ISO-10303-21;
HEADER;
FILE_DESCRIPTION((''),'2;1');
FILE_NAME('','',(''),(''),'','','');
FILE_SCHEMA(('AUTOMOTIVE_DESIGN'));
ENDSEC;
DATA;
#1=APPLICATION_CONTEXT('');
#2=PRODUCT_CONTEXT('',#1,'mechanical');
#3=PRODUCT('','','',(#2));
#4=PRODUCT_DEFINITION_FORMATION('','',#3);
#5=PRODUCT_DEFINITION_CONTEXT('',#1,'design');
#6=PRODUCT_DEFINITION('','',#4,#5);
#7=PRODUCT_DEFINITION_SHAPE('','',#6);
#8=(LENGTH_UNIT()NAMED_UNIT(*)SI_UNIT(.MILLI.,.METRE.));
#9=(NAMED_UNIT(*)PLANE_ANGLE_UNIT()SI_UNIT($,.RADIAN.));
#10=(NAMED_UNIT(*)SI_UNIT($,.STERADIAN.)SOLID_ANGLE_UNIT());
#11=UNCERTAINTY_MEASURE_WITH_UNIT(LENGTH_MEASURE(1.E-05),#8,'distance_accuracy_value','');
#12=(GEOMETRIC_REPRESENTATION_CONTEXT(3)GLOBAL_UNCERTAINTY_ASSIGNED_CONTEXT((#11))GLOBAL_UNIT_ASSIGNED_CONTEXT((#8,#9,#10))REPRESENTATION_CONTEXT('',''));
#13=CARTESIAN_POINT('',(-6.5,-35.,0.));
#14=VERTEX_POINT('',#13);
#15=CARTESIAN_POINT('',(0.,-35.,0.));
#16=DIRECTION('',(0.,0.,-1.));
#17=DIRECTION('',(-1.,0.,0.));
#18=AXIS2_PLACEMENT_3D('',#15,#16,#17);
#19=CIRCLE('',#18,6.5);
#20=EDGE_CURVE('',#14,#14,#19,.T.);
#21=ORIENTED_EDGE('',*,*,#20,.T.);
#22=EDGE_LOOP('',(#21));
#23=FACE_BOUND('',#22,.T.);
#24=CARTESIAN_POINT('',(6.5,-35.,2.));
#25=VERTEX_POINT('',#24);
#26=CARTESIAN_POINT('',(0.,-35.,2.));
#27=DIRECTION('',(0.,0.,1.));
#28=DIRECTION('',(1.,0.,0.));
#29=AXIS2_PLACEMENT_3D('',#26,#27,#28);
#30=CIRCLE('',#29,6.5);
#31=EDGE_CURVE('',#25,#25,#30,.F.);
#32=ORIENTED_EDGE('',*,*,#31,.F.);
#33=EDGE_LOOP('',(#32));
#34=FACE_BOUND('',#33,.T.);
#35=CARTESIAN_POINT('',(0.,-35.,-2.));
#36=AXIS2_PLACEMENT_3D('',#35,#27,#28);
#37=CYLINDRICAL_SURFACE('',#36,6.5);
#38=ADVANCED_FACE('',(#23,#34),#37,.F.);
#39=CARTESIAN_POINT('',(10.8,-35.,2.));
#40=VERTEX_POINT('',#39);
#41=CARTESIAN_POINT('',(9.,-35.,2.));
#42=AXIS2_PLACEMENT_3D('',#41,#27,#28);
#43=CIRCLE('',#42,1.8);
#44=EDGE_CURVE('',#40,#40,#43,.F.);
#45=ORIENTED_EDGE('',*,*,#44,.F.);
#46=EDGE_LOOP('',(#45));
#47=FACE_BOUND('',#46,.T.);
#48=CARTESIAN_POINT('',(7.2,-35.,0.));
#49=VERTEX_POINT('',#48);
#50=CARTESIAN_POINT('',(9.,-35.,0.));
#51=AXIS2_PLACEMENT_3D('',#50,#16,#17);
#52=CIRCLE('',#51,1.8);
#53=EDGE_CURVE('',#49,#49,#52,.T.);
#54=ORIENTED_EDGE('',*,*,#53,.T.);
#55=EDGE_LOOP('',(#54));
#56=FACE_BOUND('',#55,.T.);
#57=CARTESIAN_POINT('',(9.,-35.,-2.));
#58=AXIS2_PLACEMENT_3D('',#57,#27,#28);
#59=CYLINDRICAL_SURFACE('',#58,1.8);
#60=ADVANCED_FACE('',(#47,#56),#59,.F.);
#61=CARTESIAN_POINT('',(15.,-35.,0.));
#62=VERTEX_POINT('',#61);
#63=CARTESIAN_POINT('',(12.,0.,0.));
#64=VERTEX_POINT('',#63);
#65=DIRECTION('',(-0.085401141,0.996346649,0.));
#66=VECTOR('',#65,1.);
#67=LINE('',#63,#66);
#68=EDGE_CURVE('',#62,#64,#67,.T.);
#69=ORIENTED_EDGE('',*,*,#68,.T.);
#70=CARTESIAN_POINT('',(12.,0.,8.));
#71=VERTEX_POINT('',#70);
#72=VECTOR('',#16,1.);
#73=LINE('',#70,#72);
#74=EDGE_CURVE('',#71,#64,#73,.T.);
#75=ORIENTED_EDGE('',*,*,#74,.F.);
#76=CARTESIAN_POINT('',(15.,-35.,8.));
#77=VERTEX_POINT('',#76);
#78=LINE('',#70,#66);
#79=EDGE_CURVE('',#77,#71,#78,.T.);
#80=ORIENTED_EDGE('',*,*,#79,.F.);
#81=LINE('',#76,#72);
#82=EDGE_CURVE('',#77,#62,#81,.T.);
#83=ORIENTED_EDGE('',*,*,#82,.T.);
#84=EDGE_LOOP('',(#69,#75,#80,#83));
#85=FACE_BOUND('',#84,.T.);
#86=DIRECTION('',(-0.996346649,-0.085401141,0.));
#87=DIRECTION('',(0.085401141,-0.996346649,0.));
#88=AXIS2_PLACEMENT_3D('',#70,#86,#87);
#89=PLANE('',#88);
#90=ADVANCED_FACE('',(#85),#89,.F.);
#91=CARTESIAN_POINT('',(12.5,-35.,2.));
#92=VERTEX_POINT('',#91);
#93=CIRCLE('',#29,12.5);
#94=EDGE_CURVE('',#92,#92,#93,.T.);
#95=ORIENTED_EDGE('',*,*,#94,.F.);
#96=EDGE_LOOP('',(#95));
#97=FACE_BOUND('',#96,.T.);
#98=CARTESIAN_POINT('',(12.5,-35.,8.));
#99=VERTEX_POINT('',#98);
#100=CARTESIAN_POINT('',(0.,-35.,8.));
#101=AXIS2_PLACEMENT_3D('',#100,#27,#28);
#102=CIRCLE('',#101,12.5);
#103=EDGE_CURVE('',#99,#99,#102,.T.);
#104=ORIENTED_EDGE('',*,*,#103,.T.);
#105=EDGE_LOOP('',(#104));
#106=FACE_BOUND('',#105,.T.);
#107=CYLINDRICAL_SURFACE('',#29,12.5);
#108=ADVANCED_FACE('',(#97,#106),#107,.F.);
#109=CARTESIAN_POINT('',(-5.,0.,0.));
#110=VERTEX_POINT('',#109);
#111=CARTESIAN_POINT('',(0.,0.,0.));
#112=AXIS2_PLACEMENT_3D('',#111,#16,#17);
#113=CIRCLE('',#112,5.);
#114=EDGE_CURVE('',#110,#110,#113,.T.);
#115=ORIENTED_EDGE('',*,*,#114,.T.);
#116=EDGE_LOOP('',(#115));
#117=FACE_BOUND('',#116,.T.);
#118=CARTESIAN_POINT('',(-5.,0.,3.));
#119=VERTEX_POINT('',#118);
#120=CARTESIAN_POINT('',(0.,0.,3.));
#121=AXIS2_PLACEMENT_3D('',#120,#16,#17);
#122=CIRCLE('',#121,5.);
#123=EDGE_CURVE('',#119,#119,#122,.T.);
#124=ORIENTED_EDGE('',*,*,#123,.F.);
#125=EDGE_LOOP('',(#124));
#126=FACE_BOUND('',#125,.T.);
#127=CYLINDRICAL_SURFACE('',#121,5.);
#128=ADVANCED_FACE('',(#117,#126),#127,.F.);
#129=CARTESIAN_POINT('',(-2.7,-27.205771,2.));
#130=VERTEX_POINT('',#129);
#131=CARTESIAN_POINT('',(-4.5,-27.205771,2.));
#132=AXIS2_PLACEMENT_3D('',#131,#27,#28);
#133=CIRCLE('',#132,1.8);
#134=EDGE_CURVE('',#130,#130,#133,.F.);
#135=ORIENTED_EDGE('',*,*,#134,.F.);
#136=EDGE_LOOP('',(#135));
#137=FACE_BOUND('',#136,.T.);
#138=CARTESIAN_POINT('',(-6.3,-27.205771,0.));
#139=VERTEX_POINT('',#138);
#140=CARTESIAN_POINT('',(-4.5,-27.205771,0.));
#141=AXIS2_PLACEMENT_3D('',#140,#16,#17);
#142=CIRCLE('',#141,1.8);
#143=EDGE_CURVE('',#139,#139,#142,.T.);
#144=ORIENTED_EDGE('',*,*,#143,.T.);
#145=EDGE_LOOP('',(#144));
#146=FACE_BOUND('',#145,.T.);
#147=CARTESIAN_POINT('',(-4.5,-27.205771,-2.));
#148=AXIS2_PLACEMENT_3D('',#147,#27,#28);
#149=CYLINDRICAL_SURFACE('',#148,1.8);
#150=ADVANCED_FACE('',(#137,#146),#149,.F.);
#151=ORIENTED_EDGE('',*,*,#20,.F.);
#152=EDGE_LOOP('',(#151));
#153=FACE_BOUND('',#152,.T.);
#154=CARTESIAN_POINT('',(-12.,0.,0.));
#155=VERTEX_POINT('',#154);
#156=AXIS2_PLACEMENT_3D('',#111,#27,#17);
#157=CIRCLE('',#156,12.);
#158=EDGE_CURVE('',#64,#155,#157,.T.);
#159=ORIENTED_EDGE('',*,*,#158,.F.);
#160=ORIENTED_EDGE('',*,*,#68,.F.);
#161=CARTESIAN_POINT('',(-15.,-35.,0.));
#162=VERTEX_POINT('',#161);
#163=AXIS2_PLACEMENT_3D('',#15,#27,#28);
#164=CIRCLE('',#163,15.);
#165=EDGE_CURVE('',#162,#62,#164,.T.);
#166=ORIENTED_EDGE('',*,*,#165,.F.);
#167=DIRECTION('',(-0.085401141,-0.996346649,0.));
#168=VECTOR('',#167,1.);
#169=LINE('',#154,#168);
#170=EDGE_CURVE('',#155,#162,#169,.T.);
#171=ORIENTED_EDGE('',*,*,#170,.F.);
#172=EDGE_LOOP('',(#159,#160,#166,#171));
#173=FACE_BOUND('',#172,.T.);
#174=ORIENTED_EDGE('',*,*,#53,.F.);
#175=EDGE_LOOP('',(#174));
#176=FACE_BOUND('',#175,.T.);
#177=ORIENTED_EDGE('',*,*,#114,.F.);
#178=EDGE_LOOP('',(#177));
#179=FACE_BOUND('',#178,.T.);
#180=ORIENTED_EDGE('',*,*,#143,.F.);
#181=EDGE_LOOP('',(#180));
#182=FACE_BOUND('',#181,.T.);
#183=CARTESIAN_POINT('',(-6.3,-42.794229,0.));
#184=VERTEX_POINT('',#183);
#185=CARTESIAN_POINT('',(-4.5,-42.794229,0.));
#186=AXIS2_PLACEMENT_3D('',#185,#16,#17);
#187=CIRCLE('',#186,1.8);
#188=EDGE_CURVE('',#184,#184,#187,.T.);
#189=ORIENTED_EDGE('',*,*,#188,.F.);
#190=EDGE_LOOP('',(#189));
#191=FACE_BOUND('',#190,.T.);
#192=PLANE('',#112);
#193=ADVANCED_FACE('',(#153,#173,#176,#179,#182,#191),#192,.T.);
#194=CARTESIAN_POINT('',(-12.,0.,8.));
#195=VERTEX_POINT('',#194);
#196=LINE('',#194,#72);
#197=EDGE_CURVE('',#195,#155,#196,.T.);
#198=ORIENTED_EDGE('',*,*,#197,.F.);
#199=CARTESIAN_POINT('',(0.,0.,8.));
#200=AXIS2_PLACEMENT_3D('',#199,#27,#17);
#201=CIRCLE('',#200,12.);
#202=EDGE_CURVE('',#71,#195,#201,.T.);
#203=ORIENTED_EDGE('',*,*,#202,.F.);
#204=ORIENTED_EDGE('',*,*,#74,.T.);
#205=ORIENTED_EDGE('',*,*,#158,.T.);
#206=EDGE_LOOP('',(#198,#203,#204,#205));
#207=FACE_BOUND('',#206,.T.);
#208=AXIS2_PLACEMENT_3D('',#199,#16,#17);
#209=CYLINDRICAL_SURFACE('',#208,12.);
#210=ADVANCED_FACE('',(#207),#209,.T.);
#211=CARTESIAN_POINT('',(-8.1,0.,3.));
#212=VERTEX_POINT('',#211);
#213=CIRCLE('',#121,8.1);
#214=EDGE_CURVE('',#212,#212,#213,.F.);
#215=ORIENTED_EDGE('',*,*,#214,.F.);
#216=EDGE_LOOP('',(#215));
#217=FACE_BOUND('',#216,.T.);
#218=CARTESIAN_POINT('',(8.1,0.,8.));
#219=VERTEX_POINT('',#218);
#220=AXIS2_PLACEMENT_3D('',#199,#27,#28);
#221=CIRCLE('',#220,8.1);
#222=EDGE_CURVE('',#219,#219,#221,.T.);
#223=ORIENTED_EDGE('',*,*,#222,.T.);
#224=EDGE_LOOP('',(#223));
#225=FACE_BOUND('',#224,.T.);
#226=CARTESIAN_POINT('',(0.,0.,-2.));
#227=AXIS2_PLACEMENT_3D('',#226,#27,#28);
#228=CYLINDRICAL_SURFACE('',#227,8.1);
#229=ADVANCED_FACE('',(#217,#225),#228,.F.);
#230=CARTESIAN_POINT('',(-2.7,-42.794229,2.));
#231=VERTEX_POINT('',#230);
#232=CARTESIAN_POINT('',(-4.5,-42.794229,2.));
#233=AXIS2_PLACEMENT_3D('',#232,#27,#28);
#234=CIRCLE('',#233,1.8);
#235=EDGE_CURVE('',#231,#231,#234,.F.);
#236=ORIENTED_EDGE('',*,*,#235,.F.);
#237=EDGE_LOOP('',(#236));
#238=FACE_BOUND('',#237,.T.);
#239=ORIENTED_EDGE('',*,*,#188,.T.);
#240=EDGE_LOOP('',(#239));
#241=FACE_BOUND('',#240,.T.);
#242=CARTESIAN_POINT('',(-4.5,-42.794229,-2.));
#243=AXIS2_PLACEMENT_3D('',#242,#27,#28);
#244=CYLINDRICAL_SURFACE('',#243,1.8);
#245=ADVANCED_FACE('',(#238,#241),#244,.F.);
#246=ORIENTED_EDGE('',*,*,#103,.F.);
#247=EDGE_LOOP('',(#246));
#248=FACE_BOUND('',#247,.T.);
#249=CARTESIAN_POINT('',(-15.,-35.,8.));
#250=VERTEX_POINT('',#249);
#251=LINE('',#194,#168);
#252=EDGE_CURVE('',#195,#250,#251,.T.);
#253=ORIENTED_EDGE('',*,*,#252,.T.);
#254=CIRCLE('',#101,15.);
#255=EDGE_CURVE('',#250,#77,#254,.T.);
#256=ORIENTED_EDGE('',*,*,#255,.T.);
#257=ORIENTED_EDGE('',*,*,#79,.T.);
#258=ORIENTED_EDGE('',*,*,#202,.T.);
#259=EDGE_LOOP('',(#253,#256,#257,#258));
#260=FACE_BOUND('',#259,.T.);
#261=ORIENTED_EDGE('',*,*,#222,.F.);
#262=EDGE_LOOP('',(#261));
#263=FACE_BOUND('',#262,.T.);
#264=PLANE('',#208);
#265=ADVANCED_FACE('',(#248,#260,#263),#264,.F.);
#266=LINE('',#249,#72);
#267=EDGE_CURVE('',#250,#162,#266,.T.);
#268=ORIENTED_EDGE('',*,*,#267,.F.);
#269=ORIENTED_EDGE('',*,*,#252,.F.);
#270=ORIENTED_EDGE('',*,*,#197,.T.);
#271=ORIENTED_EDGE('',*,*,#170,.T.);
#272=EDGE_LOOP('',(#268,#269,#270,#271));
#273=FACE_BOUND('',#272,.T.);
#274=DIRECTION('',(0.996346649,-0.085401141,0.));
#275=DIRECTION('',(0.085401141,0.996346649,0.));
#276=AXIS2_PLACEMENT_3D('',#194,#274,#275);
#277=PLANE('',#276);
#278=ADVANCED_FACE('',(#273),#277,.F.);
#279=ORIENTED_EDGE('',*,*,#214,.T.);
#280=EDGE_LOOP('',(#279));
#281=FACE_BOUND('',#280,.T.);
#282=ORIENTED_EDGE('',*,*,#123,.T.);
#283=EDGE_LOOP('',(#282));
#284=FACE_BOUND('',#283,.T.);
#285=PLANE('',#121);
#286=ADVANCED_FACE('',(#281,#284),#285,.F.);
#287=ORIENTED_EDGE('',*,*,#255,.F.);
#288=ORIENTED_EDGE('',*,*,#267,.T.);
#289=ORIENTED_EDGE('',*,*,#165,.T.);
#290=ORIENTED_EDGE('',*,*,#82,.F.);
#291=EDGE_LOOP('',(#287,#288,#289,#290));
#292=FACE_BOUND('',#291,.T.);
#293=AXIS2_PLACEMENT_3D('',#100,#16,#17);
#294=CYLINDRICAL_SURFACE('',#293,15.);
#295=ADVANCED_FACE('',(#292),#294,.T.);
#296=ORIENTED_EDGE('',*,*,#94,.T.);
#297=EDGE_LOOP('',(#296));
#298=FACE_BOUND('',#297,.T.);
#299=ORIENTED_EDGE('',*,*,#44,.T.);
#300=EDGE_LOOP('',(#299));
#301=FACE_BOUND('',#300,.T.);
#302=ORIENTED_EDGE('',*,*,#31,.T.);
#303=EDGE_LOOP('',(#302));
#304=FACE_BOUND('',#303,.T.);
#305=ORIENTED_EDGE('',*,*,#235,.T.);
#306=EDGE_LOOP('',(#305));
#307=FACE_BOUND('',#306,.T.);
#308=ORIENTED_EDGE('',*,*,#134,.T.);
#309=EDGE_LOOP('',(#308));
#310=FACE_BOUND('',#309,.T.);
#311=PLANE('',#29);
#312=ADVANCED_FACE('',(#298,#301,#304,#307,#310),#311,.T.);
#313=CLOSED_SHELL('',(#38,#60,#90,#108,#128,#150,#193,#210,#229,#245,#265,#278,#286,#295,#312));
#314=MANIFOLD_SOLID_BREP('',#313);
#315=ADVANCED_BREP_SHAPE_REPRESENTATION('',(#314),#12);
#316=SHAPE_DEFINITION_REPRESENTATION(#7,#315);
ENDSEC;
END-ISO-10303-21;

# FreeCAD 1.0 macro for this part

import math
import FreeCAD as App
import Part
import Sketcher
from FreeCAD import Vector

doc = App.newDocument("Part")
body = doc.addObject("PartDesign::Body", "Body")

# Sketch on XY plane
sketch1 = body.newObject("Sketcher::SketchObject", "Sketch")
sketch1.AttachmentSupport = (doc.getObject("XY_Plane"), [""])
sketch1.MapMode = "FlatFace"
sketch1.addGeometry([
    Part.LineSegment(Vector(15, -35, 0), Vector(12, 0, 0)),
    Part.ArcOfCircle(Part.Circle(Vector(0, 0, 0), Vector(0, 0, 1), 12), math.radians(0), math.radians(180)),
    Part.LineSegment(Vector(-12, 0, 0), Vector(-15, -35, 0)),
    Part.ArcOfCircle(Part.Circle(Vector(0, -35, 0), Vector(0, 0, 1), 15), math.radians(180), math.radians(360)),
], False)
sketch1.addConstraint([
    Sketcher.Constraint("Coincident", 0, 2, 1, 1),
    Sketcher.Constraint("Coincident", 1, 2, 2, 1),
    Sketcher.Constraint("Coincident", 2, 2, 3, 1),
    Sketcher.Constraint("Coincident", 3, 2, 0, 1),
    Sketcher.Constraint("Coincident", 1, 3, -1, 1),
    Sketcher.Constraint("Symmetric", 2, 2, 3, 2, -2),
    Sketcher.Constraint("PointOnObject", 0, 2, -1),
    Sketcher.Constraint("PointOnObject", 1, 2, -1),
    Sketcher.Constraint("Horizontal", 3, 3, 2, 2),
    Sketcher.Constraint("Radius", 1, 12.0),
    Sketcher.Constraint("Radius", 3, 15.0),
    Sketcher.Constraint("DistanceY", 3, 3, -1, 1, 35.0),
])
pad1 = body.newObject("PartDesign::Pad", "Pad")
pad1.Profile = sketch1
pad1.Length = 8

# Sketch on XY plane
sketch2 = body.newObject("Sketcher::SketchObject", "Sketch001")
sketch2.AttachmentSupport = (doc.getObject("XY_Plane"), [""])
sketch2.MapMode = "FlatFace"
sketch2.AttachmentOffset = App.Placement(Vector(0, 0, 8), App.Rotation())
sketch2.addGeometry(Part.Circle(Vector(0, -35, 0), Vector(0, 0, 1), 6), False)
sketch2.addConstraint([
    Sketcher.Constraint("PointOnObject", 0, 3, -2),
    Sketcher.Constraint("Diameter", 0, 13.0),
    Sketcher.Constraint("DistanceY", 0, 3, -1, 1, 35.0),
])
pocket1 = body.newObject("PartDesign::Pocket", "Pocket")
pocket1.Profile = sketch2
pocket1.Length = 10

# Sketch on XY plane
sketch3 = body.newObject("Sketcher::SketchObject", "Sketch002")
sketch3.AttachmentSupport = (doc.getObject("XY_Plane"), [""])
sketch3.MapMode = "FlatFace"
sketch3.AttachmentOffset = App.Placement(Vector(0, 0, 8), App.Rotation())
sketch3.addGeometry([
    Part.Circle(Vector(9, -35, 0), Vector(0, 0, 1), 1.8),
    Part.Circle(Vector(-4.5, -27.2, 0), Vector(0, 0, 1), 1.8),
    Part.Circle(Vector(-4.5, -42.8, 0), Vector(0, 0, 1), 1.8),
], False)
sketch3.addConstraint([
    Sketcher.Constraint("Equal", 0, 1),
    Sketcher.Constraint("Equal", 1, 2),
    Sketcher.Constraint("Vertical", 1, 3, 2, 3),
    Sketcher.Constraint("Diameter", 0, 3.6),
    Sketcher.Constraint("DistanceX", -1, 1, 0, 3, 9.0),
    Sketcher.Constraint("DistanceY", 0, 3, -1, 1, 35.0),
    Sketcher.Constraint("DistanceX", 1, 3, -1, 1, 4.5),
    Sketcher.Constraint("DistanceY", 1, 3, -1, 1, 27.205771),
    Sketcher.Constraint("DistanceY", 2, 3, -1, 1, 42.794229),
])
pocket2 = body.newObject("PartDesign::Pocket", "Pocket001")
pocket2.Profile = sketch3
pocket2.Length = 10

# Sketch on XY plane
sketch4 = body.newObject("Sketcher::SketchObject", "Sketch003")
sketch4.AttachmentSupport = (doc.getObject("XY_Plane"), [""])
sketch4.MapMode = "FlatFace"
sketch4.AttachmentOffset = App.Placement(Vector(0, 0, 8), App.Rotation())
sketch4.addGeometry(Part.Circle(Vector(0, -35, 0), Vector(0, 0, 1), 12), False)
sketch4.addConstraint([
    Sketcher.Constraint("PointOnObject", 0, 3, -2),
    Sketcher.Constraint("Diameter", 0, 25.0),
    Sketcher.Constraint("DistanceY", 0, 3, -1, 1, 35.0),
])
pocket3 = body.newObject("PartDesign::Pocket", "Pocket002")
pocket3.Profile = sketch4
pocket3.Length = 6

# Sketch on XY plane
sketch5 = body.newObject("Sketcher::SketchObject", "Sketch004")
sketch5.AttachmentSupport = (doc.getObject("XY_Plane"), [""])
sketch5.MapMode = "FlatFace"
sketch5.AttachmentOffset = App.Placement(Vector(0, 0, 8), App.Rotation())
sketch5.addGeometry(Part.Circle(Vector(0, 0, 0), Vector(0, 0, 1), 8), False)
sketch5.addConstraint([
    Sketcher.Constraint("Coincident", 0, 3, -1, 1),
    Sketcher.Constraint("Diameter", 0, 16.2),
])
pocket4 = body.newObject("PartDesign::Pocket", "Pocket003")
pocket4.Profile = sketch5
pocket4.Length = 10

# Sketch on XY plane
sketch6 = body.newObject("Sketcher::SketchObject", "Sketch005")
sketch6.AttachmentSupport = (doc.getObject("XY_Plane"), [""])
sketch6.MapMode = "FlatFace"
sketch6.AttachmentOffset = App.Placement(Vector(0, 0, 3), App.Rotation())
sketch6.addGeometry([
    Part.Circle(Vector(0, 0, 0), Vector(0, 0, 1), 8),
    Part.Circle(Vector(0, 0, 0), Vector(0, 0, 1), 5),
], False)
sketch6.addConstraint([
    Sketcher.Constraint("Coincident", 0, 3, -1, 1),
    Sketcher.Constraint("Coincident", 1, 3, -1, 1),
    Sketcher.Constraint("Diameter", 1, 10.0),
    Sketcher.Constraint("Diameter", 0, 16.2),
])
pad2 = body.newObject("PartDesign::Pad", "Pad001")
pad2.Profile = sketch6
pad2.Length = 3
pad2.Reversed = True

doc.recompute()
